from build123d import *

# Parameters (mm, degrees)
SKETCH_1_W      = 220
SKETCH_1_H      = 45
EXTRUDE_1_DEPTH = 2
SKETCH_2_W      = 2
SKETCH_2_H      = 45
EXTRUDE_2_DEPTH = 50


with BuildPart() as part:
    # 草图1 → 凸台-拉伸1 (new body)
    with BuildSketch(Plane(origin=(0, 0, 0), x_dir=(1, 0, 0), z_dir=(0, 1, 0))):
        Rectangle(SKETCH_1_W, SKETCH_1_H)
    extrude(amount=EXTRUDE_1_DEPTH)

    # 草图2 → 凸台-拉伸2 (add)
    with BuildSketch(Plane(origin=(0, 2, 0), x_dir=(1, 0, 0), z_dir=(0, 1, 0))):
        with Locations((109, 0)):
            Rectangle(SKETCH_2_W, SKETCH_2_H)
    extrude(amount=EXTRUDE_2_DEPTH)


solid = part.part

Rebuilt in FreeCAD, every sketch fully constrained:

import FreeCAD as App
import Part
import Sketcher

doc = App.newDocument("Part")
body = doc.addObject("PartDesign::Body", "Body")

# Sketch on XZ plane
sketch1 = body.newObject("Sketcher::SketchObject", "Sketch")
sketch1.AttachmentSupport = (doc.getObject("XZ_Plane"), [""])
sketch1.MapMode = "FlatFace"
sketch1.addGeometry([
    Part.LineSegment(App.Vector(-110, -22.5, 0), App.Vector(-110, 22.5, 0)),
    Part.LineSegment(App.Vector(-110, 22.5, 0), App.Vector(110, 22.5, 0)),
    Part.LineSegment(App.Vector(110, 22.5, 0), App.Vector(110, -22.5, 0)),
    Part.LineSegment(App.Vector(110, -22.5, 0), App.Vector(-110, -22.5, 0)),
], False)
sketch1.addConstraint([
    Sketcher.Constraint("Coincident", 0, 2, 1, 1),
    Sketcher.Constraint("Coincident", 1, 2, 2, 1),
    Sketcher.Constraint("Coincident", 2, 2, 3, 1),
    Sketcher.Constraint("Coincident", 3, 2, 0, 1),
    Sketcher.Constraint("Vertical", 0),
    Sketcher.Constraint("Horizontal", 1),
    Sketcher.Constraint("Vertical", 2),
    Sketcher.Constraint("Horizontal", 3),
    Sketcher.Constraint("Symmetric", 0, 2, 2, 2, -1, 1),
    Sketcher.Constraint("DistanceX", 1, 1, 1, 2, 220.0),
    Sketcher.Constraint("DistanceY", 0, 1, 0, 2, 45.0),
])
pad1 = body.newObject("PartDesign::Pad", "Pad")
pad1.Profile = sketch1
pad1.Length = 2
pad1.Reversed = True

# Sketch on XZ plane
sketch2 = body.newObject("Sketcher::SketchObject", "Sketch001")
sketch2.AttachmentSupport = (doc.getObject("XZ_Plane"), [""])
sketch2.MapMode = "FlatFace"
sketch2.AttachmentOffset = App.Placement(App.Vector(0, 0, -2), App.Rotation())
sketch2.addGeometry([
    Part.LineSegment(App.Vector(108, -22.5, 0), App.Vector(108, 22.5, 0)),
    Part.LineSegment(App.Vector(108, 22.5, 0), App.Vector(110, 22.5, 0)),
    Part.LineSegment(App.Vector(110, 22.5, 0), App.Vector(110, -22.5, 0)),
    Part.LineSegment(App.Vector(110, -22.5, 0), App.Vector(108, -22.5, 0)),
], False)
sketch2.addConstraint([
    Sketcher.Constraint("Coincident", 0, 2, 1, 1),
    Sketcher.Constraint("Coincident", 1, 2, 2, 1),
    Sketcher.Constraint("Coincident", 2, 2, 3, 1),
    Sketcher.Constraint("Coincident", 3, 2, 0, 1),
    Sketcher.Constraint("Vertical", 0),
    Sketcher.Constraint("Horizontal", 1),
    Sketcher.Constraint("Vertical", 2),
    Sketcher.Constraint("Horizontal", 3),
    Sketcher.Constraint("DistanceX", 1, 1, 1, 2, 2.0),
    Sketcher.Constraint("DistanceY", 0, 1, 0, 2, 45.0),
    Sketcher.Constraint("DistanceX", -1, 1, 0, 2, 108.0),
    Sketcher.Constraint("DistanceY", -1, 1, 0, 2, 22.5),
])
pad2 = body.newObject("PartDesign::Pad", "Pad001")
pad2.Profile = sketch2
pad2.Length = 50
pad2.Reversed = True

doc.recompute()
